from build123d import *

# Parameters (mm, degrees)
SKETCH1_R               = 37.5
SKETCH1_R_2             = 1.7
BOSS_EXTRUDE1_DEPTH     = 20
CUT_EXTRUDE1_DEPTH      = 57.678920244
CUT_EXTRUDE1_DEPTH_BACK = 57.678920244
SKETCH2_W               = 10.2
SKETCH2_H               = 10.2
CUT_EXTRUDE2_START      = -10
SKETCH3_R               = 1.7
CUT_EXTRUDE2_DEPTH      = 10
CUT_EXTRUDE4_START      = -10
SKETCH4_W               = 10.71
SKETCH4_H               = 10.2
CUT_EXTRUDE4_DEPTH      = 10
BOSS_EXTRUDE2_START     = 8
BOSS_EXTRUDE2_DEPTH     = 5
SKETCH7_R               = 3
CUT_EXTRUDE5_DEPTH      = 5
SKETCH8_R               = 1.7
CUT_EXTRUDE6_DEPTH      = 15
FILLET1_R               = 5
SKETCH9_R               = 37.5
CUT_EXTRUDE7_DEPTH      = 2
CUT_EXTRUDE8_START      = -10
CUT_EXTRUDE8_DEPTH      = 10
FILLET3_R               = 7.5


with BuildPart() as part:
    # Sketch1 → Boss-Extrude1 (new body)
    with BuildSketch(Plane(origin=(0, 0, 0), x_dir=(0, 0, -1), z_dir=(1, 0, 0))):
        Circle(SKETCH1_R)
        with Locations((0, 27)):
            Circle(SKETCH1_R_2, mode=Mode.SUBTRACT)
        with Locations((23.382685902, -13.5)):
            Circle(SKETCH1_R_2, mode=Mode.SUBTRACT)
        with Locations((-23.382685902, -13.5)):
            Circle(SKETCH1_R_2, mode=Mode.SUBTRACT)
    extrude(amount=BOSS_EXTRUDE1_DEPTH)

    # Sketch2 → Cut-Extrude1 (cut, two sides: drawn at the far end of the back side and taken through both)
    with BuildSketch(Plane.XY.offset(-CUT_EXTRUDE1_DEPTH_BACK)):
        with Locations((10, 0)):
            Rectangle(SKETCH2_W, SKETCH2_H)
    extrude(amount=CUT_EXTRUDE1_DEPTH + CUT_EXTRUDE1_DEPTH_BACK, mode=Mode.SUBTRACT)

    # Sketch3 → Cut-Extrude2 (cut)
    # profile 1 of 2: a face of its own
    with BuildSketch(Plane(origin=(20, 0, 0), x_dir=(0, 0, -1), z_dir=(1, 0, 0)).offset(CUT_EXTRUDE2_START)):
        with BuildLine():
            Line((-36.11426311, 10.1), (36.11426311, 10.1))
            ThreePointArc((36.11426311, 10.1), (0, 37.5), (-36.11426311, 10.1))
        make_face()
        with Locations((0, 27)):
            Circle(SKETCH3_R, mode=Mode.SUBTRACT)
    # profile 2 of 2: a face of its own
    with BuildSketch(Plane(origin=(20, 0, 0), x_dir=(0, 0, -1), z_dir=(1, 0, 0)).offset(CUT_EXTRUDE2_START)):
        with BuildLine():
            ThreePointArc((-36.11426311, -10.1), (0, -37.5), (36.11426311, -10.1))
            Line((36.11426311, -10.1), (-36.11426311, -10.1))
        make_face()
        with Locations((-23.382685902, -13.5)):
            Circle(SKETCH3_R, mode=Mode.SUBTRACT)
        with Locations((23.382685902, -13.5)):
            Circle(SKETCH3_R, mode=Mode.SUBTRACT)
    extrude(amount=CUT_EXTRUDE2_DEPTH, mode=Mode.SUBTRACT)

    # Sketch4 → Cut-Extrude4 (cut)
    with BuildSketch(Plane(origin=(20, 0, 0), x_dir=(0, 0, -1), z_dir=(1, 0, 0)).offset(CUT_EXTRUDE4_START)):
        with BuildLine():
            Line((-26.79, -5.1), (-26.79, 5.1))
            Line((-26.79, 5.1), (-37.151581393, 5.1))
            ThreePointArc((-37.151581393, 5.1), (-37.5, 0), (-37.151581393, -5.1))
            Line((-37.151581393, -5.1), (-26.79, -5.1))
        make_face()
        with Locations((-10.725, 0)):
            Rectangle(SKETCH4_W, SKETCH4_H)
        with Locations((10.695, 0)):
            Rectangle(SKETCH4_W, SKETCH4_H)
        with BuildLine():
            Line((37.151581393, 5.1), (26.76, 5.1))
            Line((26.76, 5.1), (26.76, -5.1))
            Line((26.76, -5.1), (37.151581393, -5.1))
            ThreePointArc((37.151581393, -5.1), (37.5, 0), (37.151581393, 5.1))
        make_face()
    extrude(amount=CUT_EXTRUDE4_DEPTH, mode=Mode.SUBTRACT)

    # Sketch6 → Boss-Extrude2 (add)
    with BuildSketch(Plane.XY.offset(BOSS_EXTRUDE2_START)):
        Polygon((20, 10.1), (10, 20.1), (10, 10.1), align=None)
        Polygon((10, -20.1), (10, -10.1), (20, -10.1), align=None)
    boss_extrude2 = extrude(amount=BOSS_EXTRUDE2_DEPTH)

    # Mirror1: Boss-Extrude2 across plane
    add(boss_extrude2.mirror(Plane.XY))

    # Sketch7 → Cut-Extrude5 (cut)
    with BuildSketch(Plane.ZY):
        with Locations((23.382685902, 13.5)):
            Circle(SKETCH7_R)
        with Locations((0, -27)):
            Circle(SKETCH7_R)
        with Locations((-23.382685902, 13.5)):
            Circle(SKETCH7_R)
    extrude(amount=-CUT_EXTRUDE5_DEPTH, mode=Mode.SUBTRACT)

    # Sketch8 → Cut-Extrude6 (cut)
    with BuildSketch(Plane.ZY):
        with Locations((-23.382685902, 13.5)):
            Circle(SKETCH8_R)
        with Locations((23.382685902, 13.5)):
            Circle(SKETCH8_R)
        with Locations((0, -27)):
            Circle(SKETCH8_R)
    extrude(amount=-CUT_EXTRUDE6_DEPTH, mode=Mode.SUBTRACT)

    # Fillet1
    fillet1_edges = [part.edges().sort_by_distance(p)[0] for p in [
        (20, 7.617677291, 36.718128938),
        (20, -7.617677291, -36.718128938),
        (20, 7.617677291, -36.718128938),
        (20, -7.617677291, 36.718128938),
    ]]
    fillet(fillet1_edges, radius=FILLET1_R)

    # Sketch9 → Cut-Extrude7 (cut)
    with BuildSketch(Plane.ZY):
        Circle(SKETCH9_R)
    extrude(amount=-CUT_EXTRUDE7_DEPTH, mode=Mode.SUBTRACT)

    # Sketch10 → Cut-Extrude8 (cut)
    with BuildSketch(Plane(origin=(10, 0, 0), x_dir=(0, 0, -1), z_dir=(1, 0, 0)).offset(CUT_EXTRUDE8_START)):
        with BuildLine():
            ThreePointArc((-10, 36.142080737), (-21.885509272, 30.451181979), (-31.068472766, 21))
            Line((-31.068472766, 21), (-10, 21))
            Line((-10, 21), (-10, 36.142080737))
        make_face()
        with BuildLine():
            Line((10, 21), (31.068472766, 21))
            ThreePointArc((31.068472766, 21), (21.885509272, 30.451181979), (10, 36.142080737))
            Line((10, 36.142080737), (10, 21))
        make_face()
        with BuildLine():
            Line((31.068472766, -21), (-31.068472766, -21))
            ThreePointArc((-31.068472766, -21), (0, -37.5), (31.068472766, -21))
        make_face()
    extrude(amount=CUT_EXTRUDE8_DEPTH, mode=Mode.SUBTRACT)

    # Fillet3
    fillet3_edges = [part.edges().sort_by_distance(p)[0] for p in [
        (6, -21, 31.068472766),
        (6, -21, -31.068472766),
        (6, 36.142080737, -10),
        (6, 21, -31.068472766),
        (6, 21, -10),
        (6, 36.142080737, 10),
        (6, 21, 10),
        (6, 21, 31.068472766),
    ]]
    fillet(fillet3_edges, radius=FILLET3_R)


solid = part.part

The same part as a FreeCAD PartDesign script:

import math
import FreeCAD as App
import Part
import Sketcher
from FreeCAD import Vector
Q = App.Units.Quantity


def edges_at(feature, points):
    """Names of the edges that pass closest to the given points."""
    edges = feature.Shape.Edges
    near = lambda p: min(range(len(edges)), key=lambda i: edges[i].distToShape(Part.Vertex(*p))[0])
    return sorted({f"Edge{near(p) + 1}" for p in points})

doc = App.newDocument("Part")
body = doc.addObject("PartDesign::Body", "Body")

# Sketch on YZ plane
sketch1 = body.newObject("Sketcher::SketchObject", "Sketch")
sketch1.AttachmentSupport = (doc.getObject("YZ_Plane"), [""])
sketch1.MapMode = "FlatFace"
sketch1.addGeometry([
    Part.Circle(Vector(0, 0, 0), Vector(0, 0, 1), 37.5),
    Part.Circle(Vector(-13.5, 23.4, 0), Vector(0, 0, 1), 1.7),
    Part.Circle(Vector(-13.5, -23.4, 0), Vector(0, 0, 1), 1.7),
    Part.Circle(Vector(27, 0, 0), Vector(0, 0, 1), 1.7),
], False)
sketch1.addConstraint([
    Sketcher.Constraint("Coincident", 0, 3, -1, 1),
    Sketcher.Constraint("Equal", 1, 2),
    Sketcher.Constraint("Equal", 2, 3),
    Sketcher.Constraint("Symmetric", 1, 3, 2, 3, -1),
    Sketcher.Constraint("PointOnObject", 3, 3, -1),
    Sketcher.Constraint("Diameter", 0, Q("75 mm")),
    Sketcher.Constraint("Diameter", 1, Q("3.4 mm")),
    Sketcher.Constraint("DistanceX", -1, 1, 3, 3, Q("27 mm")),
    Sketcher.Constraint("DistanceX", 1, 3, -1, 1, Q("13.5 mm")),
    Sketcher.Constraint("DistanceY", 2, 3, 1, 3, Q("46.765372 mm")),
])
pad1 = body.newObject("PartDesign::Pad", "Pad")
pad1.Profile = sketch1
pad1.Length = 20

# Sketch on XY plane
sketch2 = body.newObject("Sketcher::SketchObject", "Sketch001")
sketch2.AttachmentSupport = (doc.getObject("XY_Plane"), [""])
sketch2.MapMode = "FlatFace"
sketch2.addGeometry([
    Part.LineSegment(Vector(5, 5, 0), Vector(5, -5, 0)),
    Part.LineSegment(Vector(5, -5, 0), Vector(15, -5, 0)),
    Part.LineSegment(Vector(15, -5, 0), Vector(15, 5, 0)),
    Part.LineSegment(Vector(15, 5, 0), Vector(5, 5, 0)),
], False)
sketch2.addConstraint([
    Sketcher.Constraint("Coincident", 0, 2, 1, 1),
    Sketcher.Constraint("Coincident", 1, 2, 2, 1),
    Sketcher.Constraint("Coincident", 2, 2, 3, 1),
    Sketcher.Constraint("Coincident", 3, 2, 0, 1),
    Sketcher.Constraint("Vertical", 0),
    Sketcher.Constraint("Horizontal", 1),
    Sketcher.Constraint("Vertical", 2),
    Sketcher.Constraint("Horizontal", 3),
    Sketcher.Constraint("Equal", 3, 0),
    Sketcher.Constraint("DistanceX", 1, 1, 1, 2, Q("10.2 mm")),
    Sketcher.Constraint("DistanceX", -1, 1, 0, 2, Q("4.9 mm")),
    Sketcher.Constraint("DistanceY", 0, 2, -1, 1, Q("5.1 mm")),
])
pocket1 = body.newObject("PartDesign::Pocket", "Pocket")
pocket1.Profile = sketch2
pocket1.Type = "ThroughAll"
pocket1.Midplane = True

# Sketch on YZ plane
sketch3 = body.newObject("Sketcher::SketchObject", "Sketch002")
sketch3.AttachmentSupport = (doc.getObject("YZ_Plane"), [""])
sketch3.MapMode = "FlatFace"
sketch3.AttachmentOffset = App.Placement(Vector(0, 0, 10), App.Rotation())
sketch3.addGeometry([
    Part.LineSegment(Vector(10.1, 36.1, 0), Vector(10.1, -36.1, 0)),  # 0
    Part.ArcOfCircle(Part.Circle(Vector(0, 0, 0), Vector(0, 0, 1), 37.5), math.radians(-74), math.radians(74)),  # 1
    Part.Circle(Vector(27, 0, 0), Vector(0, 0, 1), 1.7),  # 2
    Part.ArcOfCircle(Part.Circle(Vector(0, 0, 0), Vector(0, 0, 1), 37.5), math.radians(106), math.radians(254)),  # 3
    Part.LineSegment(Vector(-10.1, -36.1, 0), Vector(-10.1, 36.1, 0)),  # 4
    Part.Circle(Vector(-13.5, 23.4, 0), Vector(0, 0, 1), 1.7),  # 5
    Part.Circle(Vector(-13.5, -23.4, 0), Vector(0, 0, 1), 1.7),  # 6
], False)
sketch3.addConstraint([
    Sketcher.Constraint("Coincident", 0, 1, 1, 2),
    Sketcher.Constraint("Coincident", 1, 1, 0, 2),
    Sketcher.Constraint("Coincident", 3, 1, 4, 2),
    Sketcher.Constraint("Coincident", 4, 1, 3, 2),
    Sketcher.Constraint("Vertical", 0),
    Sketcher.Constraint("Vertical", 4),
    Sketcher.Constraint("Coincident", 1, 3, -1, 1),
    Sketcher.Constraint("Coincident", 3, 3, -1, 1),
    Sketcher.Constraint("Equal", 1, 3),
    Sketcher.Constraint("Equal", 2, 5),
    Sketcher.Constraint("Equal", 5, 6),
    Sketcher.Constraint("Symmetric", 5, 3, 6, 3, -1),
    Sketcher.Constraint("PointOnObject", 2, 3, -1),
    Sketcher.Constraint("Horizontal", 0, 1, 3, 1),
    Sketcher.Constraint("Diameter", 2, Q("3.4 mm")),
    Sketcher.Constraint("Radius", 1, Q("37.5 mm")),
    Sketcher.Constraint("DistanceX", -1, 1, 2, 3, Q("27 mm")),
    Sketcher.Constraint("DistanceX", 5, 3, -1, 1, Q("13.5 mm")),
    Sketcher.Constraint("DistanceX", -1, 1, 0, 1, Q("10.1 mm")),
    Sketcher.Constraint("DistanceY", 6, 3, 5, 3, Q("46.765372 mm")),
])
pocket2 = body.newObject("PartDesign::Pocket", "Pocket001")
pocket2.Profile = sketch3
pocket2.Length = 10
pocket2.Reversed = True

# Sketch on YZ plane
sketch4 = body.newObject("Sketcher::SketchObject", "Sketch003")
sketch4.AttachmentSupport = (doc.getObject("YZ_Plane"), [""])
sketch4.MapMode = "FlatFace"
sketch4.AttachmentOffset = App.Placement(Vector(0, 0, 10), App.Rotation())
sketch4.addGeometry([
    Part.LineSegment(Vector(-5, 27, 0), Vector(5, 27, 0)),  # 0
    Part.LineSegment(Vector(5, 27, 0), Vector(5, 37, 0)),  # 1
    Part.ArcOfCircle(Part.Circle(Vector(0, 0, 0), Vector(0, 0, 1), 38), math.radians(82.18), math.radians(97.82)),  # 2
    Part.LineSegment(Vector(-5, 37, 0), Vector(-5, 27, 0)),  # 3
    Part.LineSegment(Vector(5, 16, 0), Vector(-5, 16, 0)),  # 4
    Part.LineSegment(Vector(-5, 16, 0), Vector(-5, 5, 0)),  # 5
    Part.LineSegment(Vector(-5, 5, 0), Vector(5, 5, 0)),  # 6
    Part.LineSegment(Vector(5, 5, 0), Vector(5, 16, 0)),  # 7
    Part.LineSegment(Vector(5, -5, 0), Vector(-5, -5, 0)),  # 8
    Part.LineSegment(Vector(-5, -5, 0), Vector(-5, -16, 0)),  # 9
    Part.LineSegment(Vector(-5, -16, 0), Vector(5, -16, 0)),  # 10
    Part.LineSegment(Vector(5, -16, 0), Vector(5, -5, 0)),  # 11
    Part.LineSegment(Vector(5, -37, 0), Vector(5, -27, 0)),  # 12
    Part.LineSegment(Vector(5, -27, 0), Vector(-5, -27, 0)),  # 13
    Part.LineSegment(Vector(-5, -27, 0), Vector(-5, -37, 0)),  # 14
    Part.ArcOfCircle(Part.Circle(Vector(0, 0, 0), Vector(0, 0, 1), 38), math.radians(-97.82), math.radians(-82.18)),  # 15
], False)
sketch4.addConstraint([
    Sketcher.Constraint("Coincident", 0, 2, 1, 1),
    Sketcher.Constraint("Coincident", 1, 2, 2, 1),
    Sketcher.Constraint("Coincident", 2, 2, 3, 1),
    Sketcher.Constraint("Coincident", 3, 2, 0, 1),
    Sketcher.Constraint("Coincident", 4, 2, 5, 1),
    Sketcher.Constraint("Coincident", 5, 2, 6, 1),
    Sketcher.Constraint("Coincident", 6, 2, 7, 1),
    Sketcher.Constraint("Coincident", 7, 2, 4, 1),
    Sketcher.Constraint("Coincident", 8, 2, 9, 1),
    Sketcher.Constraint("Coincident", 9, 2, 10, 1),
    Sketcher.Constraint("Coincident", 10, 2, 11, 1),
    Sketcher.Constraint("Coincident", 11, 2, 8, 1),
    Sketcher.Constraint("Coincident", 12, 2, 13, 1),
    Sketcher.Constraint("Coincident", 13, 2, 14, 1),
    Sketcher.Constraint("Coincident", 14, 2, 15, 1),
    Sketcher.Constraint("Coincident", 15, 2, 12, 1),
    Sketcher.Constraint("Horizontal", 0),
    Sketcher.Constraint("Vertical", 1),
    Sketcher.Constraint("Vertical", 3),
    Sketcher.Constraint("Horizontal", 4),
    Sketcher.Constraint("Vertical", 5),
    Sketcher.Constraint("Horizontal", 6),
    Sketcher.Constraint("Vertical", 7),
    Sketcher.Constraint("Horizontal", 8),
    Sketcher.Constraint("Vertical", 9),
    Sketcher.Constraint("Horizontal", 10),
    Sketcher.Constraint("Vertical", 11),
    Sketcher.Constraint("Vertical", 12),
    Sketcher.Constraint("Horizontal", 13),
    Sketcher.Constraint("Vertical", 14),
    Sketcher.Constraint("Coincident", 2, 3, -1, 1),
    Sketcher.Constraint("Coincident", 15, 3, -1, 1),
    Sketcher.Constraint("Equal", 2, 15),
    Sketcher.Constraint("Horizontal", 1, 2, 2, 2),
    Sketcher.Constraint("Horizontal", 14, 2, 15, 2),
    Sketcher.Constraint("Vertical", 3, 2, 4, 2),
    Sketcher.Constraint("Vertical", 1, 2, 6, 2),
    Sketcher.Constraint("Vertical", 5, 2, 8, 2),
    Sketcher.Constraint("Vertical", 7, 2, 10, 2),
    Sketcher.Constraint("Vertical", 11, 2, 12, 2),
    Sketcher.Constraint("Equal", 7, 9),
    Sketcher.Constraint("Radius", 2, Q("37.5 mm")),
    Sketcher.Constraint("DistanceX", 0, 1, 0, 2, Q("10.2 mm")),
    Sketcher.Constraint("DistanceY", 5, 2, 5, 1, Q("10.71 mm")),
    Sketcher.Constraint("DistanceY", -1, 1, 0, 2, Q("26.79 mm")),
    Sketcher.Constraint("DistanceY", -1, 1, 4, 2, Q("16.08 mm")),
    Sketcher.Constraint("DistanceY", 8, 2, -1, 1, Q("5.34 mm")),
    Sketcher.Constraint("DistanceY", 12, 2, -1, 1, Q("26.76 mm")),
])
pocket3 = body.newObject("PartDesign::Pocket", "Pocket002")
pocket3.Profile = sketch4
pocket3.Length = 10
pocket3.Reversed = True

# Sketch on XY plane
sketch5 = body.newObject("Sketcher::SketchObject", "Sketch004")
sketch5.AttachmentSupport = (doc.getObject("XY_Plane"), [""])
sketch5.MapMode = "FlatFace"
sketch5.AttachmentOffset = App.Placement(Vector(0, 0, 8), App.Rotation())
sketch5.addGeometry([
    Part.LineSegment(Vector(20, 10, 0), Vector(10, 20, 0)),  # 0
    Part.LineSegment(Vector(10, 20, 0), Vector(10, 10, 0)),  # 1
    Part.LineSegment(Vector(10, 10, 0), Vector(20, 10, 0)),  # 2
    Part.LineSegment(Vector(10, -10, 0), Vector(10, -20, 0)),  # 3
    Part.LineSegment(Vector(10, -20, 0), Vector(20, -10, 0)),  # 4
    Part.LineSegment(Vector(20, -10, 0), Vector(10, -10, 0)),  # 5
], False)
sketch5.addConstraint([
    Sketcher.Constraint("Coincident", 0, 2, 1, 1),
    Sketcher.Constraint("Coincident", 1, 2, 2, 1),
    Sketcher.Constraint("Coincident", 2, 2, 0, 1),
    Sketcher.Constraint("Coincident", 3, 2, 4, 1),
    Sketcher.Constraint("Coincident", 4, 2, 5, 1),
    Sketcher.Constraint("Coincident", 5, 2, 3, 1),
    Sketcher.Constraint("Vertical", 1),
    Sketcher.Constraint("Horizontal", 2),
    Sketcher.Constraint("Vertical", 3),
    Sketcher.Constraint("Horizontal", 5),
    Sketcher.Constraint("Symmetric", 0, 2, 3, 2, -1),
    Sketcher.Constraint("Symmetric", 2, 2, 4, 2, -1),
    Sketcher.Constraint("Perpendicular", 0, 4),
    Sketcher.Constraint("DistanceX", 2, 1, 2, 2, Q("10 mm")),
    Sketcher.Constraint("DistanceX", -1, 1, 0, 2, Q("10 mm")),
    Sketcher.Constraint("DistanceY", -1, 1, 0, 2, Q("20.1 mm")),
])
pad2 = body.newObject("PartDesign::Pad", "Pad001")
pad2.Profile = sketch5
pad2.Length = 5
doc.recompute()

mirrored = body.newObject("PartDesign::Mirrored", "Mirrored")
mirrored.Originals = [pad2]
mirrored.MirrorPlane = (doc.getObject("XY_Plane"), [""])
body.Tip = mirrored

# Sketch on YZ plane
sketch6 = body.newObject("Sketcher::SketchObject", "Sketch005")
sketch6.AttachmentSupport = (doc.getObject("YZ_Plane"), [""])
sketch6.MapMode = "FlatFace"
sketch6.addGeometry([
    Part.Circle(Vector(13.5, 23.4, 0), Vector(0, 0, 1), 3),
    Part.Circle(Vector(-27, 0, 0), Vector(0, 0, 1), 3),
    Part.Circle(Vector(13.5, -23.4, 0), Vector(0, 0, 1), 3),
], False)
sketch6.addConstraint([
    Sketcher.Constraint("Equal", 0, 1),
    Sketcher.Constraint("Equal", 1, 2),
    Sketcher.Constraint("Symmetric", 0, 3, 2, 3, -1),
    Sketcher.Constraint("PointOnObject", 1, 3, -1),
    Sketcher.Constraint("Diameter", 0, Q("6 mm")),
    Sketcher.Constraint("DistanceX", 1, 3, -1, 1, Q("27 mm")),
    Sketcher.Constraint("DistanceX", -1, 1, 0, 3, Q("13.5 mm")),
    Sketcher.Constraint("DistanceY", 2, 3, 0, 3, Q("46.765372 mm")),
])
pocket4 = body.newObject("PartDesign::Pocket", "Pocket003")
pocket4.Profile = sketch6
pocket4.Length = 5
pocket4.Reversed = True

# Sketch on YZ plane
sketch7 = body.newObject("Sketcher::SketchObject", "Sketch006")
sketch7.AttachmentSupport = (doc.getObject("YZ_Plane"), [""])
sketch7.MapMode = "FlatFace"
sketch7.addGeometry([
    Part.Circle(Vector(13.5, -23.4, 0), Vector(0, 0, 1), 1.7),
    Part.Circle(Vector(13.5, 23.4, 0), Vector(0, 0, 1), 1.7),
    Part.Circle(Vector(-27, 0, 0), Vector(0, 0, 1), 1.7),
], False)
sketch7.addConstraint([
    Sketcher.Constraint("Equal", 0, 1),
    Sketcher.Constraint("Equal", 1, 2),
    Sketcher.Constraint("Symmetric", 0, 3, 1, 3, -1),
    Sketcher.Constraint("PointOnObject", 2, 3, -1),
    Sketcher.Constraint("Diameter", 0, Q("3.4 mm")),
    Sketcher.Constraint("DistanceX", 2, 3, -1, 1, Q("27 mm")),
    Sketcher.Constraint("DistanceX", -1, 1, 0, 3, Q("13.5 mm")),
    Sketcher.Constraint("DistanceY", 0, 3, 1, 3, Q("46.765372 mm")),
])
pocket5 = body.newObject("PartDesign::Pocket", "Pocket004")
pocket5.Profile = sketch7
pocket5.Length = 15
pocket5.Reversed = True
doc.recompute()

fillet = body.newObject("PartDesign::Fillet", "Fillet")
fillet.Base = (pocket5, edges_at(pocket5, [
    (20, 7.618, 36.718),
    (20, -7.618, -36.718),
    (20, 7.618, -36.718),
    (20, -7.618, 36.718),
]))
fillet.Radius = 5

# Sketch on YZ plane
sketch8 = body.newObject("Sketcher::SketchObject", "Sketch007")
sketch8.AttachmentSupport = (doc.getObject("YZ_Plane"), [""])
sketch8.MapMode = "FlatFace"
sketch8.addGeometry(Part.Circle(Vector(0, 0, 0), Vector(0, 0, 1), 38), False)
sketch8.addConstraint([
    Sketcher.Constraint("Coincident", 0, 3, -1, 1),
    Sketcher.Constraint("Diameter", 0, Q("75 mm")),
])
pocket6 = body.newObject("PartDesign::Pocket", "Pocket005")
pocket6.Profile = sketch8
pocket6.Length = 2
pocket6.Reversed = True

# Sketch on YZ plane
sketch9 = body.newObject("Sketcher::SketchObject", "Sketch008")
sketch9.AttachmentSupport = (doc.getObject("YZ_Plane"), [""])
sketch9.MapMode = "FlatFace"
sketch9.addGeometry([
    Part.ArcOfCircle(Part.Circle(Vector(0, 0, 0), Vector(0, 0, 1), 37), math.radians(15), math.radians(56)),  # 0
    Part.LineSegment(Vector(21, 31, 0), Vector(21, 10, 0)),  # 1
    Part.LineSegment(Vector(21, 10, 0), Vector(36, 10, 0)),  # 2
    Part.LineSegment(Vector(21, -10, 0), Vector(21, -31, 0)),  # 3
    Part.ArcOfCircle(Part.Circle(Vector(0, 0, 0), Vector(0, 0, 1), 37), math.radians(-56), math.radians(-15)),  # 4
    Part.LineSegment(Vector(36, -10, 0), Vector(21, -10, 0)),  # 5
    Part.LineSegment(Vector(-21, -31, 0), Vector(-21, 31, 0)),  # 6
    Part.ArcOfCircle(Part.Circle(Vector(0, 0, 0), Vector(0, 0, 1), 38), math.radians(124), math.radians(236)),  # 7
], False)
sketch9.addConstraint([
    Sketcher.Constraint("Coincident", 0, 2, 1, 1),
    Sketcher.Constraint("Coincident", 1, 2, 2, 1),
    Sketcher.Constraint("Coincident", 2, 2, 0, 1),
    Sketcher.Constraint("Coincident", 3, 2, 4, 1),
    Sketcher.Constraint("Coincident", 4, 2, 5, 1),
    Sketcher.Constraint("Coincident", 5, 2, 3, 1),
    Sketcher.Constraint("Coincident", 6, 1, 7, 2),
    Sketcher.Constraint("Coincident", 7, 1, 6, 2),
    Sketcher.Constraint("Vertical", 1),
    Sketcher.Constraint("Horizontal", 2),
    Sketcher.Constraint("Vertical", 3),
    Sketcher.Constraint("Horizontal", 5),
    Sketcher.Constraint("Vertical", 6),
    Sketcher.Constraint("Coincident", 0, 3, -1, 1),
    Sketcher.Constraint("Coincident", 4, 3, -1, 1),
    Sketcher.Constraint("Coincident", 7, 3, -1, 1),
    Sketcher.Constraint("Equal", 0, 4),
    Sketcher.Constraint("Equal", 4, 7),
    Sketcher.Constraint("Symmetric", 1, 2, 5, 2, -1),
    Sketcher.Constraint("Horizontal", 3, 2, 6, 1),
    Sketcher.Constraint("Radius", 0, Q("37.5 mm")),
    Sketcher.Constraint("DistanceX", -1, 1, 0, 2, Q("21 mm")),
    Sketcher.Constraint("DistanceY", -1, 1, 1, 2, Q("10 mm")),
])
pocket7 = body.newObject("PartDesign::Pocket", "Pocket006")
pocket7.Profile = sketch9
pocket7.Length = 10
pocket7.Reversed = True
doc.recompute()

fillet2 = body.newObject("PartDesign::Fillet", "Fillet001")
fillet2.Base = (pocket7, edges_at(pocket7, [
    (6, -21, 31.068),
    (6, -21, -31.068),
    (6, 36.142, -10),
    (6, 21, -31.068),
    (6, 21, -10),
    (6, 36.142, 10),
    (6, 21, 10),
    (6, 21, 31.068),
]))
fillet2.Radius = 7.5

doc.recompute()
